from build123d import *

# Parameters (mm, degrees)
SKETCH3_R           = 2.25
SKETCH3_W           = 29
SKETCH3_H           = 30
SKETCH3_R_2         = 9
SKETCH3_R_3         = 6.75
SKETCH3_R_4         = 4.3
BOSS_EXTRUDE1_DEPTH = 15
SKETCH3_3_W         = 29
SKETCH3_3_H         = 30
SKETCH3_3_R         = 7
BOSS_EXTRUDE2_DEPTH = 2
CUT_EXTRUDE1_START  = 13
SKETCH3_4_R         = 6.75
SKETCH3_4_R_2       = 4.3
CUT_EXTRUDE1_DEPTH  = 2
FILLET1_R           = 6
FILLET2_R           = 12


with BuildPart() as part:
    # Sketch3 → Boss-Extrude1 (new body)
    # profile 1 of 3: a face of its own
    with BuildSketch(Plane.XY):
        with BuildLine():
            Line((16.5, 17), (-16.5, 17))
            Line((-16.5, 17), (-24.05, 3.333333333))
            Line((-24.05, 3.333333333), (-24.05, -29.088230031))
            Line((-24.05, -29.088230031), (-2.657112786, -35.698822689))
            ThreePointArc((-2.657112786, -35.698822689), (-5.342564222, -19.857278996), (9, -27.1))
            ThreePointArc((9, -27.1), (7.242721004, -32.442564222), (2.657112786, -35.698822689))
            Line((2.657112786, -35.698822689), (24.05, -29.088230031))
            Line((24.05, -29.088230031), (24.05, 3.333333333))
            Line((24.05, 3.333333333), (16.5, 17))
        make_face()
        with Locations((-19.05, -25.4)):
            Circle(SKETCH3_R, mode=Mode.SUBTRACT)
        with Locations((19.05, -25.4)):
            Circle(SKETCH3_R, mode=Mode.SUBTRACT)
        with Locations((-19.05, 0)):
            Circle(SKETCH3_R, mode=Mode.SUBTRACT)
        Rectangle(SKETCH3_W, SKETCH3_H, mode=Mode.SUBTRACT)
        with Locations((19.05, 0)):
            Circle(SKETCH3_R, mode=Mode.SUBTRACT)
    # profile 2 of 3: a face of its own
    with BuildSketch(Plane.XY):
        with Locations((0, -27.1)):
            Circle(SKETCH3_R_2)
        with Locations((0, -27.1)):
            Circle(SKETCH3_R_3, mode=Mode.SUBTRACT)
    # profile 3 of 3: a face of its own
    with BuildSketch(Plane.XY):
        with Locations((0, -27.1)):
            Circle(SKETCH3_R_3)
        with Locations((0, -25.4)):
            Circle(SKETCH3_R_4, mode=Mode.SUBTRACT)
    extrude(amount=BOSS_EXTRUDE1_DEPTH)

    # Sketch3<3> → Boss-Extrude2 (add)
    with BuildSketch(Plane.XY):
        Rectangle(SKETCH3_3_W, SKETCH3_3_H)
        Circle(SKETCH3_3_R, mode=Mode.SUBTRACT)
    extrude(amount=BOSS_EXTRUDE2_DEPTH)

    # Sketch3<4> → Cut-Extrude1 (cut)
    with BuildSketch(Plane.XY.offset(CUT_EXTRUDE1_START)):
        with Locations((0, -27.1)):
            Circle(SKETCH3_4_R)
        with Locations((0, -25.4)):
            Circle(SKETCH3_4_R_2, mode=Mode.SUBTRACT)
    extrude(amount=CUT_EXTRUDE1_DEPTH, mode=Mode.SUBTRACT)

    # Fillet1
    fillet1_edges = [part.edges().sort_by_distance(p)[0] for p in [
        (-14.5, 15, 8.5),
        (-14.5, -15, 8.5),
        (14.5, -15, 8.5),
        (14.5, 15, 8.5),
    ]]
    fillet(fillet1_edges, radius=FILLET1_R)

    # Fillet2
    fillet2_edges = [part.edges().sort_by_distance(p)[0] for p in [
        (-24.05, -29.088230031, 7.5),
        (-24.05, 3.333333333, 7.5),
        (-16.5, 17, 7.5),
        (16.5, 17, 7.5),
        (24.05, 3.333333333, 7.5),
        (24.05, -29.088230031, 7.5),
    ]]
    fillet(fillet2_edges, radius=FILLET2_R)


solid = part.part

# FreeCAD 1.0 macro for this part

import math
import FreeCAD as App
import Part
import Sketcher


def edges_at(feature, points):
    """Names of the edges that pass closest to the given points."""
    edges = feature.Shape.Edges
    near = lambda p: min(range(len(edges)), key=lambda i: edges[i].distToShape(Part.Vertex(*p))[0])
    return sorted({f"Edge{near(p) + 1}" for p in points})


def add_polygon(sketch, points):
    """Adds a closed chain of lines whose ends are joined by coincident constraints."""
    first, n = sketch.GeometryCount, len(points)
    for a, b in zip(points, points[1:] + points[:1]):
        sketch.addGeometry(Part.LineSegment(App.Vector(*a, 0), App.Vector(*b, 0)), False)
    for i in range(n):
        sketch.addConstraint(Sketcher.Constraint("Coincident", first + i, 2, first + (i + 1) % n, 1))

doc = App.newDocument("Part")
params = doc.addObject("Spreadsheet::Sheet", "Params")
for row, (alias, value) in enumerate([
    ("sketch1_radius", "9 mm"),
    ("sketch1_diameter", "4.5 mm"),
    ("sketch1_diameter2", "8.6 mm"),
    ("sketch1_width", "33 mm"),
    ("sketch1_width2", "29 mm"),
    ("pad1_length", "15 mm"),
    ("sketch2_diameter", "14 mm"),
    ("sketch2_width", "29 mm"),
    ("sketch2_height", "30 mm"),
    ("pad2_length", "2 mm"),
    ("sketch3_diameter", "13.5 mm"),
    ("sketch3_diameter2", "8.6 mm"),
    ("pocket1_length", "2 mm"),
    ("fillet_radius", "6 mm"),
    ("fillet2_radius", "12 mm"),
], start=1):
    params.set(f"A{row}", alias)
    params.set(f"B{row}", "=" + value)
    params.setAlias(f"B{row}", alias)

body = doc.addObject("PartDesign::Body", "Body")

sketch1 = doc.addObject("Sketcher::SketchObject", "Sketch")
body.addObject(sketch1)
sketch1.AttachmentSupport = (doc.XY_Plane, [""])
sketch1.MapMode = "FlatFace"
sketch1.addGeometry(Part.LineSegment(App.Vector(16.5, 17, 0), App.Vector(-16.5, 17, 0)), False)
sketch1.addGeometry(Part.LineSegment(App.Vector(-16.5, 17, 0), App.Vector(-24.1, 3.3, 0)), False)
sketch1.addGeometry(Part.LineSegment(App.Vector(-24.1, 3.3, 0), App.Vector(-24.1, -29.1, 0)), False)
sketch1.addGeometry(Part.LineSegment(App.Vector(-24.1, -29.1, 0), App.Vector(-2.7, -35.7, 0)), False)
sketch1.addGeometry(Part.ArcOfCircle(Part.Circle(App.Vector(0, -27.1, 0), App.Vector(0, 0, 1), 9), math.radians(-107), math.radians(-73)), False)
sketch1.addGeometry(Part.LineSegment(App.Vector(2.7, -35.7, 0), App.Vector(24.1, -29.1, 0)), False)
sketch1.addGeometry(Part.LineSegment(App.Vector(24.1, -29.1, 0), App.Vector(24.1, 3.3, 0)), False)
sketch1.addGeometry(Part.LineSegment(App.Vector(24.1, 3.3, 0), App.Vector(16.5, 17, 0)), False)
sketch1.addGeometry(Part.Circle(App.Vector(-19.1, -25.4, 0), App.Vector(0, 0, 1), 2.2), False)
sketch1.addGeometry(Part.Circle(App.Vector(19.1, -25.4, 0), App.Vector(0, 0, 1), 2.2), False)
sketch1.addGeometry(Part.Circle(App.Vector(-19.1, 0, 0), App.Vector(0, 0, 1), 2.2), False)
add_polygon(sketch1, [(14.5, -15), (-14.5, -15), (-14.5, 15), (14.5, 15)])
sketch1.addGeometry(Part.Circle(App.Vector(19.1, 0, 0), App.Vector(0, 0, 1), 2.2), False)
sketch1.addGeometry(Part.Circle(App.Vector(0, -25.4, 0), App.Vector(0, 0, 1), 4.3), False)
sketch1.addConstraint([
    Sketcher.Constraint("Coincident", 0, 2, 1, 1),
    Sketcher.Constraint("Coincident", 1, 2, 2, 1),
    Sketcher.Constraint("Coincident", 2, 2, 3, 1),
    Sketcher.Constraint("Tangent", 3, 2, 4, 1),
    Sketcher.Constraint("Tangent", 4, 2, 5, 1),
    Sketcher.Constraint("Coincident", 5, 2, 6, 1),
    Sketcher.Constraint("Coincident", 6, 2, 7, 1),
    Sketcher.Constraint("Coincident", 7, 2, 0, 1),
    Sketcher.Constraint("Horizontal", 0),
    Sketcher.Constraint("Vertical", 2),
    Sketcher.Constraint("Vertical", 6),
    Sketcher.Constraint("Horizontal", 11),
    Sketcher.Constraint("Vertical", 12),
    Sketcher.Constraint("Horizontal", 13),
    Sketcher.Constraint("Vertical", 14),
    Sketcher.Constraint("Equal", 8, 9),
    Sketcher.Constraint("Equal", 9, 10),
    Sketcher.Constraint("Equal", 10, 15),
    Sketcher.Constraint("Symmetric", 10, 3, 15, 3, -1, 1),
    Sketcher.Constraint("Symmetric", 11, 2, 13, 2, -1, 1),
    Sketcher.Constraint("Symmetric", 8, 3, 9, 3, -2),
    Sketcher.Constraint("Symmetric", 3, 2, 4, 2, -2),
    Sketcher.Constraint("Symmetric", 1, 2, 6, 2, -2),
    Sketcher.Constraint("PointOnObject", 10, 3, -1),
    Sketcher.Constraint("PointOnObject", 16, 3, -2),
    Sketcher.Constraint("Horizontal", 9, 3, 16, 3),
    Sketcher.Constraint("Vertical", 8, 3, 10, 3),
    Sketcher.Constraint("Equal", 1, 7),
    Sketcher.Constraint("Radius", 4, 9.0),
    Sketcher.Constraint("Diameter", 8, 4.5),
    Sketcher.Constraint("Diameter", 16, 8.6),
    Sketcher.Constraint("DistanceX", 0, 2, 0, 1, 33.0),
    Sketcher.Constraint("DistanceX", 11, 2, 11, 1, 29.0),
    Sketcher.Constraint("DistanceY", 12, 1, 12, 2, 30.0),
    Sketcher.Constraint("DistanceY", -1, 1, 0, 2, 17.0),
    Sketcher.Constraint("DistanceX", 1, 2, 10, 3, 5.0),
    Sketcher.Constraint("DistanceY", 4, 3, -1, 1, 27.1),
    Sketcher.Constraint("DistanceY", 8, 3, -1, 1, 25.4),
    Sketcher.Constraint("DistanceX", 8, 3, 9, 3, 38.1),
    Sketcher.Constraint("Distance", 3, 22.39097),
    Sketcher.Constraint("DistanceY", 2, 2, 2, 1, 32.421563),
])
sketch1.setExpression("Constraints[32]", "Params.sketch1_radius")
sketch1.setExpression("Constraints[33]", "Params.sketch1_diameter")
sketch1.setExpression("Constraints[34]", "Params.sketch1_diameter2")
sketch1.setExpression("Constraints[35]", "Params.sketch1_width")
sketch1.setExpression("Constraints[36]", "Params.sketch1_width2")
pad1 = doc.addObject("PartDesign::Pad", "Pad")
body.addObject(pad1)
pad1.Profile = sketch1
pad1.setExpression("Length", "Params.pad1_length")

sketch2 = doc.addObject("Sketcher::SketchObject", "Sketch001")
body.addObject(sketch2)
sketch2.AttachmentSupport = (doc.XY_Plane, [""])
sketch2.MapMode = "FlatFace"
add_polygon(sketch2, [(-14, 15), (-14, -15), (14, -15), (14, 15)])
sketch2.addGeometry(Part.Circle(App.Vector(0, 0, 0), App.Vector(0, 0, 1), 7), False)
sketch2.addConstraint([
    Sketcher.Constraint("Vertical", 0),
    Sketcher.Constraint("Horizontal", 1),
    Sketcher.Constraint("Vertical", 2),
    Sketcher.Constraint("Horizontal", 3),
    Sketcher.Constraint("Coincident", 4, 3, -1, 1),
    Sketcher.Constraint("Symmetric", 0, 2, 2, 2, -1, 1),
    Sketcher.Constraint("Diameter", 4, 14.0),
    Sketcher.Constraint("DistanceX", 1, 1, 1, 2, 29.0),
    Sketcher.Constraint("DistanceY", 0, 2, 0, 1, 30.0),
])
sketch2.setExpression("Constraints[10]", "Params.sketch2_diameter")
sketch2.setExpression("Constraints[11]", "Params.sketch2_width")
sketch2.setExpression("Constraints[12]", "Params.sketch2_height")
pad2 = doc.addObject("PartDesign::Pad", "Pad001")
body.addObject(pad2)
pad2.Profile = sketch2
pad2.setExpression("Length", "Params.pad2_length")

sketch3 = doc.addObject("Sketcher::SketchObject", "Sketch002")
body.addObject(sketch3)
sketch3.AttachmentSupport = (doc.XY_Plane, [""])
sketch3.MapMode = "FlatFace"
sketch3.AttachmentOffset = App.Placement(App.Vector(0, 0, 13), App.Rotation())
sketch3.addGeometry([
    Part.Circle(App.Vector(0, -27.1, 0), App.Vector(0, 0, 1), 6.8),
    Part.Circle(App.Vector(0, -25.4, 0), App.Vector(0, 0, 1), 4.3),
], False)
sketch3.addConstraint([
    Sketcher.Constraint("PointOnObject", 0, 3, -2),
    Sketcher.Constraint("PointOnObject", 1, 3, -2),
    Sketcher.Constraint("Diameter", 0, 13.5),
    Sketcher.Constraint("Diameter", 1, 8.6),
    Sketcher.Constraint("DistanceY", 0, 3, -1, 1, 27.1),
    Sketcher.Constraint("DistanceY", 1, 3, -1, 1, 25.4),
])
sketch3.setExpression("Constraints[2]", "Params.sketch3_diameter")
sketch3.setExpression("Constraints[3]", "Params.sketch3_diameter2")
pocket1 = doc.addObject("PartDesign::Pocket", "Pocket")
body.addObject(pocket1)
pocket1.Profile = sketch3
pocket1.setExpression("Length", "Params.pocket1_length")
pocket1.Reversed = True
doc.recompute()

fillet = doc.addObject("PartDesign::Fillet", "Fillet")
body.addObject(fillet)
fillet.Base = (pocket1, edges_at(pocket1, [
    (-14.5, 15, 8.5),
    (-14.5, -15, 8.5),
    (14.5, -15, 8.5),
    (14.5, 15, 8.5),
]))
fillet.setExpression("Radius", "Params.fillet_radius")
doc.recompute()

fillet2 = doc.addObject("PartDesign::Fillet", "Fillet001")
body.addObject(fillet2)
fillet2.Base = (fillet, edges_at(fillet, [
    (-24.05, -29.088, 7.5),
    (-24.05, 3.333, 7.5),
    (-16.5, 17, 7.5),
    (16.5, 17, 7.5),
    (24.05, 3.333, 7.5),
    (24.05, -29.088, 7.5),
]))
fillet2.setExpression("Radius", "Params.fillet2_radius")

doc.recompute()
